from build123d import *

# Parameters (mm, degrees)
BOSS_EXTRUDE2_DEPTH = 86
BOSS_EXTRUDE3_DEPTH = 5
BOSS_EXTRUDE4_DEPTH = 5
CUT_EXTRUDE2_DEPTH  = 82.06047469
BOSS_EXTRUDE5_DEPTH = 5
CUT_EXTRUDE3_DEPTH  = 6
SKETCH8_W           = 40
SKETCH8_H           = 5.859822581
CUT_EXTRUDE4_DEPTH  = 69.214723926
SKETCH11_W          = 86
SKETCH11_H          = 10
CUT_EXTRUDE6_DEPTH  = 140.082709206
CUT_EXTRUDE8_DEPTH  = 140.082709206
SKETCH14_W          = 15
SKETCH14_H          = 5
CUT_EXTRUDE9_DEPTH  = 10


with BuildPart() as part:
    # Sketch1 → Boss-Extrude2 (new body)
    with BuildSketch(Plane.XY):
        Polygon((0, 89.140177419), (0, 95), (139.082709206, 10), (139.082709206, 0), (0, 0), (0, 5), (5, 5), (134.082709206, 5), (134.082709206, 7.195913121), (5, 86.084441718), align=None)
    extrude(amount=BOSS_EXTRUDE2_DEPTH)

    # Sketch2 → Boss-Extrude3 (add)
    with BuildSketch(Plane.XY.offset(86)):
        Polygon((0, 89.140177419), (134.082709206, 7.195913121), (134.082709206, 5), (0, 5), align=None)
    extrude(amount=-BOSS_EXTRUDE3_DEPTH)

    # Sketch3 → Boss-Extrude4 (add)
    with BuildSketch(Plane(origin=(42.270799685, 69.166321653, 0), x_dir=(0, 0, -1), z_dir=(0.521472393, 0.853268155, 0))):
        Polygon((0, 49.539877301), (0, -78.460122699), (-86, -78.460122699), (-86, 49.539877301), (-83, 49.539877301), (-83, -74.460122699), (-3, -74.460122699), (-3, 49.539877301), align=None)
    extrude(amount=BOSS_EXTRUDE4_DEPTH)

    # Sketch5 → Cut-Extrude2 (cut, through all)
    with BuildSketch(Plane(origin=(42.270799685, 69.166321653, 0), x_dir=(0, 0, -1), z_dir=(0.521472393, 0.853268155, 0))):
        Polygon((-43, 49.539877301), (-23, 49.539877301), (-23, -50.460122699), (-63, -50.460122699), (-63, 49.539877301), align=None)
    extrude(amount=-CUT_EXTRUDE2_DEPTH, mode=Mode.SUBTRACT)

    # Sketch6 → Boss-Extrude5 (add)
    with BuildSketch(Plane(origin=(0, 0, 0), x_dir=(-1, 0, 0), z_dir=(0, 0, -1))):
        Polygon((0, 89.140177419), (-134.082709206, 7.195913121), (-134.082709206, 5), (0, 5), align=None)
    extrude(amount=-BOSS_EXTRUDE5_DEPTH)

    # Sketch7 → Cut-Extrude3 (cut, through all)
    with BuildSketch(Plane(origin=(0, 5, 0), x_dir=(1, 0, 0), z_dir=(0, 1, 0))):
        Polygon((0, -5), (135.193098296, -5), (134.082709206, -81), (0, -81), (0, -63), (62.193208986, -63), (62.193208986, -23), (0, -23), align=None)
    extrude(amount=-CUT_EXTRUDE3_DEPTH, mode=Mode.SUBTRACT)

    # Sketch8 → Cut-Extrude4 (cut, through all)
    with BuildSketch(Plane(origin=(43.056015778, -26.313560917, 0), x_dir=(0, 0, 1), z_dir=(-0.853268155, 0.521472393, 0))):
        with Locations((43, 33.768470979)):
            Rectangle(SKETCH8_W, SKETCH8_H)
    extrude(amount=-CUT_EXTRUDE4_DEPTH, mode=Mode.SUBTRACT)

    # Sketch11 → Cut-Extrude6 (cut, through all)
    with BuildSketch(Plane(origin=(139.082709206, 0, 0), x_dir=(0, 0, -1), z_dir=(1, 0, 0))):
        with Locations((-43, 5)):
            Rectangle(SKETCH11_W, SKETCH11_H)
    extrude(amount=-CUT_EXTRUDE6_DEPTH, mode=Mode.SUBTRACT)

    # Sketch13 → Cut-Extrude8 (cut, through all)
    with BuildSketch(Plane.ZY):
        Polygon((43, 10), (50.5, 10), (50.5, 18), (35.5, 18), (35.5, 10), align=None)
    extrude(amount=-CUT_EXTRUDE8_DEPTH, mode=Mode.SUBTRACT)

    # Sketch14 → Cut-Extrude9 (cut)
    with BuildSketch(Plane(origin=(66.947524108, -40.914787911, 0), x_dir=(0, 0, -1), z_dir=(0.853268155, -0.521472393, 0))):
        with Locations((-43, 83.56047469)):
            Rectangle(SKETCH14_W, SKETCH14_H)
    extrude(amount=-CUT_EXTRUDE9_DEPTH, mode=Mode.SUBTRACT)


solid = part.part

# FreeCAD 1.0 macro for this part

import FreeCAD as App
import Part
import Sketcher
from FreeCAD import Vector

doc = App.newDocument("Part")
body = doc.addObject("PartDesign::Body", "Body")
body.AllowCompound = True

sketch1 = body.newObject("Sketcher::SketchObject", "Sketch")
sketch1.AttachmentSupport = (doc.getObject("XY_Plane"), [""])
sketch1.MapMode = "FlatFace"
sketch1.addGeometry(Part.LineSegment(Vector(0, 95, 0), Vector(0, 89.1, 0)), False)
sketch1.addGeometry(Part.LineSegment(Vector(0, 89.1, 0), Vector(5, 86.1, 0)), False)
sketch1.addGeometry(Part.LineSegment(Vector(5, 86.1, 0), Vector(134.1, 7.2, 0)), False)
sketch1.addGeometry(Part.LineSegment(Vector(134.1, 7.2, 0), Vector(134.1, 5, 0)), False)
sketch1.addGeometry(Part.LineSegment(Vector(134.1, 5, 0), Vector(0, 5, 0)), False)
sketch1.addGeometry(Part.LineSegment(Vector(0, 5, 0), Vector(0, 0, 0)), False)
sketch1.addGeometry(Part.LineSegment(Vector(0, 0, 0), Vector(139.1, 0, 0)), False)
sketch1.addGeometry(Part.LineSegment(Vector(139.1, 0, 0), Vector(139.1, 10, 0)), False)
sketch1.addGeometry(Part.LineSegment(Vector(139.1, 10, 0), Vector(0, 95, 0)), False)
sketch1.addConstraint(Sketcher.Constraint("Coincident", 0, 2, 1, 1))
sketch1.addConstraint(Sketcher.Constraint("Coincident", 1, 2, 2, 1))
sketch1.addConstraint(Sketcher.Constraint("Coincident", 2, 2, 3, 1))
sketch1.addConstraint(Sketcher.Constraint("Coincident", 3, 2, 4, 1))
sketch1.addConstraint(Sketcher.Constraint("Coincident", 4, 2, 5, 1))
sketch1.addConstraint(Sketcher.Constraint("Coincident", 5, 2, 6, 1))
sketch1.addConstraint(Sketcher.Constraint("Coincident", 6, 2, 7, 1))
sketch1.addConstraint(Sketcher.Constraint("Coincident", 7, 2, 8, 1))
sketch1.addConstraint(Sketcher.Constraint("Coincident", 8, 2, 0, 1))
sketch1.addConstraint(Sketcher.Constraint("Vertical", 0))
sketch1.addConstraint(Sketcher.Constraint("Vertical", 3))
sketch1.addConstraint(Sketcher.Constraint("Horizontal", 4))
sketch1.addConstraint(Sketcher.Constraint("Vertical", 5))
sketch1.addConstraint(Sketcher.Constraint("Horizontal", 6))
sketch1.addConstraint(Sketcher.Constraint("Vertical", 7))
sketch1.addConstraint(Sketcher.Constraint("Coincident", 5, 2, -1, 1))
sketch1.addConstraint(Sketcher.Constraint("PointOnObject", 0, 2, -2))
sketch1.addConstraint(Sketcher.Constraint("Parallel", 1, 2))
sketch1.addConstraint(Sketcher.Constraint("Parallel", 2, 8))
sketch1.addConstraint(Sketcher.Constraint("DistanceY", 5, 2, 5, 1, 5.0))
sketch1.addConstraint(Sketcher.Constraint("DistanceY", 7, 1, 7, 2, 10.0))
sketch1.addConstraint(Sketcher.Constraint("Distance", 8, 163.0))
sketch1.addConstraint(Sketcher.Constraint("DistanceX", -1, 1, 1, 2, 5.0))
sketch1.addConstraint(Sketcher.Constraint("DistanceY", -1, 1, 8, 2, 95.0))
sketch1.addConstraint(Sketcher.Constraint("DistanceX", 3, 2, 6, 2, 5.0))
sketch1.addConstraint(Sketcher.Constraint("DistanceY", 0, 2, 0, 1, 5.859823))
pad1 = body.newObject("PartDesign::Pad", "Pad")
pad1.Profile = sketch1
pad1.Length = 86

sketch2 = body.newObject("Sketcher::SketchObject", "Sketch001")
sketch2.AttachmentSupport = (doc.getObject("XY_Plane"), [""])
sketch2.MapMode = "FlatFace"
sketch2.AttachmentOffset = App.Placement(Vector(0, 0, 86), App.Rotation())
sketch2.addGeometry(Part.LineSegment(Vector(134.1, 7.2, 0), Vector(0, 89.1, 0)), False)
sketch2.addGeometry(Part.LineSegment(Vector(0, 89.1, 0), Vector(0, 5, 0)), False)
sketch2.addGeometry(Part.LineSegment(Vector(0, 5, 0), Vector(134.1, 5, 0)), False)
sketch2.addGeometry(Part.LineSegment(Vector(134.1, 5, 0), Vector(134.1, 7.2, 0)), False)
sketch2.addConstraint(Sketcher.Constraint("Coincident", 0, 2, 1, 1))
sketch2.addConstraint(Sketcher.Constraint("Coincident", 1, 2, 2, 1))
sketch2.addConstraint(Sketcher.Constraint("Coincident", 2, 2, 3, 1))
sketch2.addConstraint(Sketcher.Constraint("Coincident", 3, 2, 0, 1))
sketch2.addConstraint(Sketcher.Constraint("Vertical", 1))
sketch2.addConstraint(Sketcher.Constraint("Horizontal", 2))
sketch2.addConstraint(Sketcher.Constraint("Vertical", 3))
sketch2.addConstraint(Sketcher.Constraint("PointOnObject", 0, 2, -2))
sketch2.addConstraint(Sketcher.Constraint("DistanceY", -1, 1, 1, 2, 5.0))
sketch2.addConstraint(Sketcher.Constraint("DistanceX", 2, 1, 2, 2, 134.082709))
sketch2.addConstraint(Sketcher.Constraint("DistanceY", 1, 2, 1, 1, 84.140177))
sketch2.addConstraint(Sketcher.Constraint("DistanceY", 3, 1, 3, 2, 2.195913))
pad2 = body.newObject("PartDesign::Pad", "Pad001")
pad2.Profile = sketch2
pad2.Length = 5
pad2.Reversed = True

sketch3 = body.newObject("Sketcher::SketchObject", "Sketch002")
sketch3.Placement = App.Placement(Vector(42.2708, 69.166322, 0), App.Rotation(Vector(0, 0, -1), Vector(-0.853268155, 0.521472393, 0), Vector(0.521472393, 0.853268155, 0), "ZXY"))
sketch3.addGeometry(Part.LineSegment(Vector(0, -78.5, 0), Vector(0, 49.5, 0)), False)
sketch3.addGeometry(Part.LineSegment(Vector(0, 49.5, 0), Vector(-3, 49.5, 0)), False)
sketch3.addGeometry(Part.LineSegment(Vector(-3, 49.5, 0), Vector(-3, -74.5, 0)), False)
sketch3.addGeometry(Part.LineSegment(Vector(-3, -74.5, 0), Vector(-83, -74.5, 0)), False)
sketch3.addGeometry(Part.LineSegment(Vector(-83, -74.5, 0), Vector(-83, 49.5, 0)), False)
sketch3.addGeometry(Part.LineSegment(Vector(-83, 49.5, 0), Vector(-86, 49.5, 0)), False)
sketch3.addGeometry(Part.LineSegment(Vector(-86, 49.5, 0), Vector(-86, -78.5, 0)), False)
sketch3.addGeometry(Part.LineSegment(Vector(-86, -78.5, 0), Vector(0, -78.5, 0)), False)
sketch3.addConstraint(Sketcher.Constraint("Coincident", 0, 2, 1, 1))
sketch3.addConstraint(Sketcher.Constraint("Coincident", 1, 2, 2, 1))
sketch3.addConstraint(Sketcher.Constraint("Coincident", 2, 2, 3, 1))
sketch3.addConstraint(Sketcher.Constraint("Coincident", 3, 2, 4, 1))
sketch3.addConstraint(Sketcher.Constraint("Coincident", 4, 2, 5, 1))
sketch3.addConstraint(Sketcher.Constraint("Coincident", 5, 2, 6, 1))
sketch3.addConstraint(Sketcher.Constraint("Coincident", 6, 2, 7, 1))
sketch3.addConstraint(Sketcher.Constraint("Coincident", 7, 2, 0, 1))
sketch3.addConstraint(Sketcher.Constraint("Vertical", 0))
sketch3.addConstraint(Sketcher.Constraint("Horizontal", 1))
sketch3.addConstraint(Sketcher.Constraint("Vertical", 2))
sketch3.addConstraint(Sketcher.Constraint("Horizontal", 3))
sketch3.addConstraint(Sketcher.Constraint("Vertical", 4))
sketch3.addConstraint(Sketcher.Constraint("Horizontal", 5))
sketch3.addConstraint(Sketcher.Constraint("Vertical", 6))
sketch3.addConstraint(Sketcher.Constraint("Horizontal", 7))
sketch3.addConstraint(Sketcher.Constraint("PointOnObject", 0, 2, -2))
sketch3.addConstraint(Sketcher.Constraint("Horizontal", 1, 2, 4, 2))
sketch3.addConstraint(Sketcher.Constraint("Equal", 1, 5))
sketch3.addConstraint(Sketcher.Constraint("DistanceX", 1, 2, 1, 1, 3.0))
sketch3.addConstraint(Sketcher.Constraint("DistanceX", 3, 2, 3, 1, 80.0))
sketch3.addConstraint(Sketcher.Constraint("DistanceY", 0, 1, 0, 2, 128.0))
sketch3.addConstraint(Sketcher.Constraint("DistanceY", 2, 2, 2, 1, 124.0))
sketch3.addConstraint(Sketcher.Constraint("DistanceY", -1, 1, 0, 2, 49.539877))
pad3 = body.newObject("PartDesign::Pad", "Pad002")
pad3.Profile = sketch3
pad3.Length = 5

sketch4 = body.newObject("Sketcher::SketchObject", "Sketch003")
sketch4.Placement = App.Placement(Vector(42.2708, 69.166322, 0), App.Rotation(Vector(0, 0, -1), Vector(-0.853268155, 0.521472393, 0), Vector(0.521472393, 0.853268155, 0), "ZXY"))
sketch4.addGeometry(Part.LineSegment(Vector(-23, 50, 0), Vector(-63, 50, 0)), False)
sketch4.addGeometry(Part.LineSegment(Vector(-63, 50, 0), Vector(-63, -50, 0)), False)
sketch4.addGeometry(Part.LineSegment(Vector(-63, -50, 0), Vector(-23, -50, 0)), False)
sketch4.addGeometry(Part.LineSegment(Vector(-23, -50, 0), Vector(-23, 50, 0)), False)
sketch4.addConstraint(Sketcher.Constraint("Coincident", 0, 2, 1, 1))
sketch4.addConstraint(Sketcher.Constraint("Coincident", 1, 2, 2, 1))
sketch4.addConstraint(Sketcher.Constraint("Coincident", 2, 2, 3, 1))
sketch4.addConstraint(Sketcher.Constraint("Coincident", 3, 2, 0, 1))
sketch4.addConstraint(Sketcher.Constraint("Horizontal", 0))
sketch4.addConstraint(Sketcher.Constraint("Vertical", 1))
sketch4.addConstraint(Sketcher.Constraint("Horizontal", 2))
sketch4.addConstraint(Sketcher.Constraint("Vertical", 3))
sketch4.addConstraint(Sketcher.Constraint("DistanceX", 0, 2, 0, 1, 40.0))
sketch4.addConstraint(Sketcher.Constraint("DistanceY", 1, 2, 1, 1, 100.0))
sketch4.addConstraint(Sketcher.Constraint("DistanceX", 0, 2, -1, 1, 63.0))
sketch4.addConstraint(Sketcher.Constraint("DistanceY", -1, 1, 0, 2, 49.539877))
pocket1 = body.newObject("PartDesign::Pocket", "Pocket")
pocket1.Profile = sketch4
pocket1.Type = "ThroughAll"

sketch5 = body.newObject("Sketcher::SketchObject", "Sketch004")
sketch5.AttachmentSupport = (doc.getObject("XY_Plane"), [""])
sketch5.MapMode = "FlatFace"
sketch5.addGeometry(Part.LineSegment(Vector(0, 89.1, 0), Vector(134.1, 7.2, 0)), False)
sketch5.addGeometry(Part.LineSegment(Vector(134.1, 7.2, 0), Vector(134.1, 5, 0)), False)
sketch5.addGeometry(Part.LineSegment(Vector(134.1, 5, 0), Vector(0, 5, 0)), False)
sketch5.addGeometry(Part.LineSegment(Vector(0, 5, 0), Vector(0, 89.1, 0)), False)
sketch5.addConstraint(Sketcher.Constraint("Coincident", 0, 2, 1, 1))
sketch5.addConstraint(Sketcher.Constraint("Coincident", 1, 2, 2, 1))
sketch5.addConstraint(Sketcher.Constraint("Coincident", 2, 2, 3, 1))
sketch5.addConstraint(Sketcher.Constraint("Coincident", 3, 2, 0, 1))
sketch5.addConstraint(Sketcher.Constraint("Vertical", 1))
sketch5.addConstraint(Sketcher.Constraint("Horizontal", 2))
sketch5.addConstraint(Sketcher.Constraint("Vertical", 3))
sketch5.addConstraint(Sketcher.Constraint("PointOnObject", 2, 2, -2))
sketch5.addConstraint(Sketcher.Constraint("DistanceY", -1, 1, 1, 2, 5.0))
sketch5.addConstraint(Sketcher.Constraint("DistanceX", 2, 2, 2, 1, 134.082709))
sketch5.addConstraint(Sketcher.Constraint("DistanceY", 1, 2, 1, 1, 2.195913))
sketch5.addConstraint(Sketcher.Constraint("DistanceY", 3, 1, 3, 2, 84.140177))
pad4 = body.newObject("PartDesign::Pad", "Pad003")
pad4.Profile = sketch5
pad4.Length = 5

sketch6 = body.newObject("Sketcher::SketchObject", "Sketch005")
sketch6.AttachmentSupport = (doc.getObject("XZ_Plane"), [""])
sketch6.MapMode = "FlatFace"
sketch6.AttachmentOffset = App.Placement(Vector(0, 0, -5), App.Rotation())
sketch6.addGeometry(Part.LineSegment(Vector(135, 5, 0), Vector(0, 5, 0)), False)
sketch6.addGeometry(Part.LineSegment(Vector(0, 5, 0), Vector(0, 23, 0)), False)
sketch6.addGeometry(Part.LineSegment(Vector(0, 23, 0), Vector(62, 23, 0)), False)
sketch6.addGeometry(Part.LineSegment(Vector(62, 23, 0), Vector(62, 63, 0)), False)
sketch6.addGeometry(Part.LineSegment(Vector(62, 63, 0), Vector(0, 63, 0)), False)
sketch6.addGeometry(Part.LineSegment(Vector(0, 63, 0), Vector(0, 81, 0)), False)
sketch6.addGeometry(Part.LineSegment(Vector(0, 81, 0), Vector(134, 81, 0)), False)
sketch6.addGeometry(Part.LineSegment(Vector(134, 81, 0), Vector(135, 5, 0)), False)
sketch6.addConstraint(Sketcher.Constraint("Coincident", 0, 2, 1, 1))
sketch6.addConstraint(Sketcher.Constraint("Coincident", 1, 2, 2, 1))
sketch6.addConstraint(Sketcher.Constraint("Coincident", 2, 2, 3, 1))
sketch6.addConstraint(Sketcher.Constraint("Coincident", 3, 2, 4, 1))
sketch6.addConstraint(Sketcher.Constraint("Coincident", 4, 2, 5, 1))
sketch6.addConstraint(Sketcher.Constraint("Coincident", 5, 2, 6, 1))
sketch6.addConstraint(Sketcher.Constraint("Coincident", 6, 2, 7, 1))
sketch6.addConstraint(Sketcher.Constraint("Coincident", 7, 2, 0, 1))
sketch6.addConstraint(Sketcher.Constraint("Horizontal", 0))
sketch6.addConstraint(Sketcher.Constraint("Vertical", 1))
sketch6.addConstraint(Sketcher.Constraint("Horizontal", 2))
sketch6.addConstraint(Sketcher.Constraint("Vertical", 3))
sketch6.addConstraint(Sketcher.Constraint("Horizontal", 4))
sketch6.addConstraint(Sketcher.Constraint("Vertical", 5))
sketch6.addConstraint(Sketcher.Constraint("Horizontal", 6))
sketch6.addConstraint(Sketcher.Constraint("PointOnObject", 0, 2, -2))
sketch6.addConstraint(Sketcher.Constraint("PointOnObject", 4, 2, -2))
sketch6.addConstraint(Sketcher.Constraint("Equal", 1, 5))
sketch6.addConstraint(Sketcher.Constraint("DistanceY", 1, 1, 1, 2, 18.0))
sketch6.addConstraint(Sketcher.Constraint("DistanceY", 3, 1, 3, 2, 40.0))
sketch6.addConstraint(Sketcher.Constraint("DistanceY", -1, 1, 0, 2, 5.0))
sketch6.addConstraint(Sketcher.Constraint("DistanceX", 0, 2, 0, 1, 135.193098))
sketch6.addConstraint(Sketcher.Constraint("DistanceX", 2, 1, 2, 2, 62.193209))
sketch6.addConstraint(Sketcher.Constraint("DistanceX", 6, 1, 6, 2, 134.082709))
pocket2 = body.newObject("PartDesign::Pocket", "Pocket001")
pocket2.Profile = sketch6
pocket2.Type = "ThroughAll"
pocket2.Reversed = True

sketch7 = body.newObject("Sketcher::SketchObject", "Sketch006")
sketch7.Placement = App.Placement(Vector(43.056016, -26.313561, 0), App.Rotation(Vector(0, 0, 1), Vector(0.521472393, 0.853268155, 0), Vector(-0.853268155, 0.521472393, 0), "ZXY"))
sketch7.addGeometry(Part.LineSegment(Vector(23, 37, 0), Vector(23, 31, 0)), False)
sketch7.addGeometry(Part.LineSegment(Vector(23, 31, 0), Vector(63, 31, 0)), False)
sketch7.addGeometry(Part.LineSegment(Vector(63, 31, 0), Vector(63, 37, 0)), False)
sketch7.addGeometry(Part.LineSegment(Vector(63, 37, 0), Vector(23, 37, 0)), False)
sketch7.addConstraint(Sketcher.Constraint("Coincident", 0, 2, 1, 1))
sketch7.addConstraint(Sketcher.Constraint("Coincident", 1, 2, 2, 1))
sketch7.addConstraint(Sketcher.Constraint("Coincident", 2, 2, 3, 1))
sketch7.addConstraint(Sketcher.Constraint("Coincident", 3, 2, 0, 1))
sketch7.addConstraint(Sketcher.Constraint("Vertical", 0))
sketch7.addConstraint(Sketcher.Constraint("Horizontal", 1))
sketch7.addConstraint(Sketcher.Constraint("Vertical", 2))
sketch7.addConstraint(Sketcher.Constraint("Horizontal", 3))
sketch7.addConstraint(Sketcher.Constraint("DistanceX", 1, 1, 1, 2, 40.0))
sketch7.addConstraint(Sketcher.Constraint("DistanceX", -1, 1, 0, 2, 23.0))
sketch7.addConstraint(Sketcher.Constraint("DistanceY", 0, 2, 0, 1, 5.859823))
sketch7.addConstraint(Sketcher.Constraint("DistanceY", -1, 1, 0, 2, 30.83856))
pocket3 = body.newObject("PartDesign::Pocket", "Pocket002")
pocket3.Profile = sketch7
pocket3.Type = "ThroughAll"

sketch8 = body.newObject("Sketcher::SketchObject", "Sketch007")
sketch8.AttachmentSupport = (doc.getObject("YZ_Plane"), [""])
sketch8.MapMode = "FlatFace"
sketch8.AttachmentOffset = App.Placement(Vector(0, 0, 139.082709), App.Rotation())
sketch8.addGeometry(Part.LineSegment(Vector(10, 86, 0), Vector(0, 86, 0)), False)
sketch8.addGeometry(Part.LineSegment(Vector(0, 86, 0), Vector(0, 0, 0)), False)
sketch8.addGeometry(Part.LineSegment(Vector(0, 0, 0), Vector(10, 0, 0)), False)
sketch8.addGeometry(Part.LineSegment(Vector(10, 0, 0), Vector(10, 86, 0)), False)
sketch8.addConstraint(Sketcher.Constraint("Coincident", 0, 2, 1, 1))
sketch8.addConstraint(Sketcher.Constraint("Coincident", 1, 2, 2, 1))
sketch8.addConstraint(Sketcher.Constraint("Coincident", 2, 2, 3, 1))
sketch8.addConstraint(Sketcher.Constraint("Coincident", 3, 2, 0, 1))
sketch8.addConstraint(Sketcher.Constraint("Horizontal", 0))
sketch8.addConstraint(Sketcher.Constraint("Vertical", 1))
sketch8.addConstraint(Sketcher.Constraint("Horizontal", 2))
sketch8.addConstraint(Sketcher.Constraint("Vertical", 3))
sketch8.addConstraint(Sketcher.Constraint("Coincident", 1, 2, -1, 1))
sketch8.addConstraint(Sketcher.Constraint("DistanceX", 0, 2, 0, 1, 10.0))
sketch8.addConstraint(Sketcher.Constraint("DistanceY", 1, 2, 1, 1, 86.0))
pocket4 = body.newObject("PartDesign::Pocket", "Pocket003")
pocket4.Profile = sketch8
pocket4.Type = "ThroughAll"

sketch9 = body.newObject("Sketcher::SketchObject", "Sketch008")
sketch9.AttachmentSupport = (doc.getObject("YZ_Plane"), [""])
sketch9.MapMode = "FlatFace"
sketch9.addGeometry(Part.LineSegment(Vector(10, 50, 0), Vector(18, 50, 0)), False)
sketch9.addGeometry(Part.LineSegment(Vector(18, 50, 0), Vector(18, 36, 0)), False)
sketch9.addGeometry(Part.LineSegment(Vector(18, 36, 0), Vector(10, 36, 0)), False)
sketch9.addGeometry(Part.LineSegment(Vector(10, 36, 0), Vector(10, 50, 0)), False)
sketch9.addConstraint(Sketcher.Constraint("Coincident", 0, 2, 1, 1))
sketch9.addConstraint(Sketcher.Constraint("Coincident", 1, 2, 2, 1))
sketch9.addConstraint(Sketcher.Constraint("Coincident", 2, 2, 3, 1))
sketch9.addConstraint(Sketcher.Constraint("Coincident", 3, 2, 0, 1))
sketch9.addConstraint(Sketcher.Constraint("Horizontal", 0))
sketch9.addConstraint(Sketcher.Constraint("Vertical", 1))
sketch9.addConstraint(Sketcher.Constraint("Horizontal", 2))
sketch9.addConstraint(Sketcher.Constraint("Vertical", 3))
sketch9.addConstraint(Sketcher.Constraint("DistanceX", 0, 1, 0, 2, 8.0))
sketch9.addConstraint(Sketcher.Constraint("DistanceY", 1, 2, 1, 1, 15.0))
sketch9.addConstraint(Sketcher.Constraint("DistanceX", -1, 1, 0, 2, 18.0))
sketch9.addConstraint(Sketcher.Constraint("DistanceY", -1, 1, 0, 2, 50.5))
pocket5 = body.newObject("PartDesign::Pocket", "Pocket004")
pocket5.Profile = sketch9
pocket5.Type = "ThroughAll"
pocket5.Reversed = True

sketch10 = body.newObject("Sketcher::SketchObject", "Sketch009")
sketch10.Placement = App.Placement(Vector(66.947524, -40.914788, 0), App.Rotation(Vector(0, 0, -1), Vector(0.521472393, 0.853268155, 0), Vector(0.853268155, -0.521472393, 0), "ZXY"))
sketch10.addGeometry(Part.LineSegment(Vector(-50, 86, 0), Vector(-50, 81, 0)), False)
sketch10.addGeometry(Part.LineSegment(Vector(-50, 81, 0), Vector(-36, 81, 0)), False)
sketch10.addGeometry(Part.LineSegment(Vector(-36, 81, 0), Vector(-36, 86, 0)), False)
sketch10.addGeometry(Part.LineSegment(Vector(-36, 86, 0), Vector(-50, 86, 0)), False)
sketch10.addConstraint(Sketcher.Constraint("Coincident", 0, 2, 1, 1))
sketch10.addConstraint(Sketcher.Constraint("Coincident", 1, 2, 2, 1))
sketch10.addConstraint(Sketcher.Constraint("Coincident", 2, 2, 3, 1))
sketch10.addConstraint(Sketcher.Constraint("Coincident", 3, 2, 0, 1))
sketch10.addConstraint(Sketcher.Constraint("Vertical", 0))
sketch10.addConstraint(Sketcher.Constraint("Horizontal", 1))
sketch10.addConstraint(Sketcher.Constraint("Vertical", 2))
sketch10.addConstraint(Sketcher.Constraint("Horizontal", 3))
sketch10.addConstraint(Sketcher.Constraint("DistanceX", 1, 1, 1, 2, 15.0))
sketch10.addConstraint(Sketcher.Constraint("DistanceY", 0, 2, 0, 1, 5.0))
sketch10.addConstraint(Sketcher.Constraint("DistanceX", 0, 2, -1, 1, 50.5))
sketch10.addConstraint(Sketcher.Constraint("DistanceY", -1, 1, 0, 2, 81.060475))
pocket6 = body.newObject("PartDesign::Pocket", "Pocket005")
pocket6.Profile = sketch10
pocket6.Length = 10

doc.recompute()
